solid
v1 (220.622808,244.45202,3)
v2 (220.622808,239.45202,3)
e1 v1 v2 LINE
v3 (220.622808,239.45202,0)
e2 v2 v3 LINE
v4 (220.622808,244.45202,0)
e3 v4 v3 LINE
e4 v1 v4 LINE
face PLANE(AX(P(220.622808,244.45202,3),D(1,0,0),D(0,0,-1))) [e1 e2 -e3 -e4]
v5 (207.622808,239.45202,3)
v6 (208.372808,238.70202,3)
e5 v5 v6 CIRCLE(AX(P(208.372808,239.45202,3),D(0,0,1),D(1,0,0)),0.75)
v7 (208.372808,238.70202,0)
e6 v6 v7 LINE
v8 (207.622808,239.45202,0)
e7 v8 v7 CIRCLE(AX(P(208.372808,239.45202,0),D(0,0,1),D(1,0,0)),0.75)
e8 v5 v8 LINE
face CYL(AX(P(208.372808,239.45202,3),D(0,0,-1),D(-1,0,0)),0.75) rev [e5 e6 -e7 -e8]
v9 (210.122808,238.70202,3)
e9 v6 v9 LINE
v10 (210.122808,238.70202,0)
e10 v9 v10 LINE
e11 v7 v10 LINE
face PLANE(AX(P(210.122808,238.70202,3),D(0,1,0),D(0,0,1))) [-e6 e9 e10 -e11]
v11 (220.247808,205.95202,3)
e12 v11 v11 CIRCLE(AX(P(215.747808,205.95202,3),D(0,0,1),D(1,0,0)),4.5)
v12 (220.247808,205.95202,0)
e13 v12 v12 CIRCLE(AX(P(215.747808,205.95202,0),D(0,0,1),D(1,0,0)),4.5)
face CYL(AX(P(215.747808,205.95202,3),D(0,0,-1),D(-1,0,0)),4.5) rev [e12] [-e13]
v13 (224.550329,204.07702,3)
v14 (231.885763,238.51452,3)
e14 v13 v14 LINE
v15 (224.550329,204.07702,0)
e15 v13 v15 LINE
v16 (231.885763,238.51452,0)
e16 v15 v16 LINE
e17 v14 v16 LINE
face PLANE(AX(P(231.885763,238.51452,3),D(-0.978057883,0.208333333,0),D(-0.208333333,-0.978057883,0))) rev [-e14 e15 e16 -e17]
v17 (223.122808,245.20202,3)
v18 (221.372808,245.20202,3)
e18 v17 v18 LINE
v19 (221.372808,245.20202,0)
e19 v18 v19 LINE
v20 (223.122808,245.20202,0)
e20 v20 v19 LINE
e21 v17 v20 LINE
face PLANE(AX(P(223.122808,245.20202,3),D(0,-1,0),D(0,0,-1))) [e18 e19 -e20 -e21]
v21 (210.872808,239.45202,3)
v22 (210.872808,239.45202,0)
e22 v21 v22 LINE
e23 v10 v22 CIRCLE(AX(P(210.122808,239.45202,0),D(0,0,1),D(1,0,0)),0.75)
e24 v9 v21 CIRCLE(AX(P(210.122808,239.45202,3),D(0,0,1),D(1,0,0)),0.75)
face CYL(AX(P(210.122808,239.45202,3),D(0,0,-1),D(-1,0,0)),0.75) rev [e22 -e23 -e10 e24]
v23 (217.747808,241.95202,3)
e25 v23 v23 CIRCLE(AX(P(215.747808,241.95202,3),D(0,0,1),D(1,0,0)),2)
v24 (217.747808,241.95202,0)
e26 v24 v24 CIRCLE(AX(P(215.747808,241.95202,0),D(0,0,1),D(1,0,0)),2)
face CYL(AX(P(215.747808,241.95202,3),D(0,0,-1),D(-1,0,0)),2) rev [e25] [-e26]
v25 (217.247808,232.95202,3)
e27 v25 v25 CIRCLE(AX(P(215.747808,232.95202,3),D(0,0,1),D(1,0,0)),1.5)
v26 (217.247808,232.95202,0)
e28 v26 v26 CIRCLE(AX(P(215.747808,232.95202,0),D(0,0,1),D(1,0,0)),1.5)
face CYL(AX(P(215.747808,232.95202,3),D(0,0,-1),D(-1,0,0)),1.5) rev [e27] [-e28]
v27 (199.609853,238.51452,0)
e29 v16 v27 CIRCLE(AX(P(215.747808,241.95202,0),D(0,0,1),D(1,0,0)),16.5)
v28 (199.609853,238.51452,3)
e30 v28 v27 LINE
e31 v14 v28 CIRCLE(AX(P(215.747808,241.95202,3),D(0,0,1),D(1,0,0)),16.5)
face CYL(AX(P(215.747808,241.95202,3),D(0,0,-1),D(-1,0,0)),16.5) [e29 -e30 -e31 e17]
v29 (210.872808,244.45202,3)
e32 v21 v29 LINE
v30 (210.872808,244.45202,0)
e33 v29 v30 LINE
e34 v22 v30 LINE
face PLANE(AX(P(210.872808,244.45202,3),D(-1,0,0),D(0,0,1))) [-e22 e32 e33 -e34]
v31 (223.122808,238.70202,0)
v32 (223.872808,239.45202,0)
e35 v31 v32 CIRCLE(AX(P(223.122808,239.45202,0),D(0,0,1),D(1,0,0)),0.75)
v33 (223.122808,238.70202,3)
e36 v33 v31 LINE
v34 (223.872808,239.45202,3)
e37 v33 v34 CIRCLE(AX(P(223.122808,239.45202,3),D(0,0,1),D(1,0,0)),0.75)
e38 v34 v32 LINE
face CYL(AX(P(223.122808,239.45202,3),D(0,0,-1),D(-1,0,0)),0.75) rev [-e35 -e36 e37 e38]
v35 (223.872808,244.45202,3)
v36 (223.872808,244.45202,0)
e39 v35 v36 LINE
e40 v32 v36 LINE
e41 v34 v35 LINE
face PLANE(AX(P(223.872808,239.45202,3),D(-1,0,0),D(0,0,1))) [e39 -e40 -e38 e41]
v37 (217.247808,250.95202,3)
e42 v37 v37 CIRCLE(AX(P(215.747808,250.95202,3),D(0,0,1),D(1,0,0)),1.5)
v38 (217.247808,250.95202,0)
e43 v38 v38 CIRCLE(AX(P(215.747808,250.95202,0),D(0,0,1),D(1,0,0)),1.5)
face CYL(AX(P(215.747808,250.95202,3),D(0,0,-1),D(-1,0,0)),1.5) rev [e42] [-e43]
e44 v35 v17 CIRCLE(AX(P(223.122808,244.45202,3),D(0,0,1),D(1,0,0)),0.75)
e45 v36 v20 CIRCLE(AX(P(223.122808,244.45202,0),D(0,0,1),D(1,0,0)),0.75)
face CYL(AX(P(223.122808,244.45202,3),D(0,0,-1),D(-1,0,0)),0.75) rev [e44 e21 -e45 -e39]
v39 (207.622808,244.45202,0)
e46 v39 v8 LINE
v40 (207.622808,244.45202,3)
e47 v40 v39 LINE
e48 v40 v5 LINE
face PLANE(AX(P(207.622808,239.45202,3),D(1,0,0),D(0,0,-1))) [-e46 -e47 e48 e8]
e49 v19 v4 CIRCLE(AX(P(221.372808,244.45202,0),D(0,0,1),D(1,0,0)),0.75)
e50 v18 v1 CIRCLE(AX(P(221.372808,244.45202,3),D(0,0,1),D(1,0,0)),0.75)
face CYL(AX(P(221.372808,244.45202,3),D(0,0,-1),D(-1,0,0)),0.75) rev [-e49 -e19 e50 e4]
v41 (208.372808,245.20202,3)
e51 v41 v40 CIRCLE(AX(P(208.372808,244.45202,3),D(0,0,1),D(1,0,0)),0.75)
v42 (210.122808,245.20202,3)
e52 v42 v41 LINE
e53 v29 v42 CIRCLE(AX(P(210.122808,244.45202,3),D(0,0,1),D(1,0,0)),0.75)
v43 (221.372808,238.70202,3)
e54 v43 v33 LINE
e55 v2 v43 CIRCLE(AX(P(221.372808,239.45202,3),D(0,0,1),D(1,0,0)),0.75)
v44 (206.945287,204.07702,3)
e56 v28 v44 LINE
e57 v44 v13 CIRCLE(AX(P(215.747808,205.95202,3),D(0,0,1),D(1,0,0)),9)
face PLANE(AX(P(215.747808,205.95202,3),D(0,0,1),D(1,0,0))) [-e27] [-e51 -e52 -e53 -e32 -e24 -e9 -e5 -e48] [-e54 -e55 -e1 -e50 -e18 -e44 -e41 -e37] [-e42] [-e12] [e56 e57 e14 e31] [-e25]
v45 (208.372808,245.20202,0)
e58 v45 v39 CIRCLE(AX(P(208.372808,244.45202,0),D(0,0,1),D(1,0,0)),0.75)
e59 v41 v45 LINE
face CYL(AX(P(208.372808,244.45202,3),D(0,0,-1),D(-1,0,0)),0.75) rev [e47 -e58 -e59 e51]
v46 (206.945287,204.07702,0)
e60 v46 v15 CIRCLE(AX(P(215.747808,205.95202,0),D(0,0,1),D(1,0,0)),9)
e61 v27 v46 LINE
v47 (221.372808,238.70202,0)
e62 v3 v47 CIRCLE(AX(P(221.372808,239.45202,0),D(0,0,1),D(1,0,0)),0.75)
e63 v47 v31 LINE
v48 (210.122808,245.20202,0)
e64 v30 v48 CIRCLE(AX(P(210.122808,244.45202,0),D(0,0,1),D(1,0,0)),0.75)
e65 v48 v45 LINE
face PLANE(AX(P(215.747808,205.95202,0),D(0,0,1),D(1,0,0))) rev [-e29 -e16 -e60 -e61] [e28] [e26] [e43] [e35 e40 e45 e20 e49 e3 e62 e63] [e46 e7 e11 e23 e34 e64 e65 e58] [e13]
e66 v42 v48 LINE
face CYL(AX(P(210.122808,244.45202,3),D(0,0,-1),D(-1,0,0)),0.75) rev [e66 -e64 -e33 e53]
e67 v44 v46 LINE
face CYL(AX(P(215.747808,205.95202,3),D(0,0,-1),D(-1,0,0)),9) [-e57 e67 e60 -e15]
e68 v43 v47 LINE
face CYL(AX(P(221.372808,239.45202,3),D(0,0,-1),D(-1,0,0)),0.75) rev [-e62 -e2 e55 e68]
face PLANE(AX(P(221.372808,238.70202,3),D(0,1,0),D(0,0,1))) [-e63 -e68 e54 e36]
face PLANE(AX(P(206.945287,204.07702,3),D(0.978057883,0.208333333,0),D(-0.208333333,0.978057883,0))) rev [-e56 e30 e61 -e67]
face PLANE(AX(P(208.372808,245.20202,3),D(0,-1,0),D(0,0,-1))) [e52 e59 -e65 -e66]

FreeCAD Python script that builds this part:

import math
import FreeCAD as App
import Part
import Sketcher

V = App.Vector

doc = App.newDocument("Part")
body = doc.addObject("PartDesign::Body", "Body")

sketch1 = body.newObject("Sketcher::SketchObject", "Sketch")
sketch1.AttachmentSupport = (doc.getObject("XY_Plane"), [""])
sketch1.MapMode = "FlatFace"
sketch1.addGeometry(Part.LineSegment(V(199.6, 238.5, 0), V(206.9, 204.1, 0)), False)
sketch1.addGeometry(Part.ArcOfCircle(Part.Circle(V(215.7, 206, 0), V(0, 0, 1), 9), math.radians(-168), math.radians(-12)), False)
sketch1.addGeometry(Part.LineSegment(V(224.6, 204.1, 0), V(231.9, 238.5, 0)), False)
sketch1.addGeometry(Part.ArcOfCircle(Part.Circle(V(215.7, 242, 0), V(0, 0, 1), 16.5), math.radians(-12), math.radians(192)), False)
sketch1.addGeometry(Part.Circle(V(215.7, 206, 0), V(0, 0, 1), 4.5), False)
sketch1.addGeometry(Part.Circle(V(215.7, 233, 0), V(0, 0, 1), 1.5), False)
sketch1.addGeometry(Part.ArcOfCircle(Part.Circle(V(223.1, 244.5, 0), V(0, 0, 1), 0.8), math.radians(0), math.radians(90)), False)
sketch1.addGeometry(Part.LineSegment(V(223.9, 244.5, 0), V(223.9, 239.5, 0)), False)
sketch1.addGeometry(Part.ArcOfCircle(Part.Circle(V(223.1, 239.5, 0), V(0, 0, 1), 0.8), math.radians(-90), math.radians(0)), False)
sketch1.addGeometry(Part.LineSegment(V(223.1, 238.7, 0), V(221.4, 238.7, 0)), False)
sketch1.addGeometry(Part.ArcOfCircle(Part.Circle(V(221.4, 239.5, 0), V(0, 0, 1), 0.8), math.radians(-180), math.radians(-90)), False)
sketch1.addGeometry(Part.LineSegment(V(220.6, 239.5, 0), V(220.6, 244.5, 0)), False)
sketch1.addGeometry(Part.ArcOfCircle(Part.Circle(V(221.4, 244.5, 0), V(0, 0, 1), 0.8), math.radians(90), math.radians(180)), False)
sketch1.addGeometry(Part.LineSegment(V(221.4, 245.2, 0), V(223.1, 245.2, 0)), False)
sketch1.addGeometry(Part.Circle(V(215.7, 242, 0), V(0, 0, 1), 2), False)
sketch1.addGeometry(Part.Circle(V(215.7, 251, 0), V(0, 0, 1), 1.5), False)
sketch1.addGeometry(Part.LineSegment(V(208.4, 245.2, 0), V(210.1, 245.2, 0)), False)
sketch1.addGeometry(Part.ArcOfCircle(Part.Circle(V(210.1, 244.5, 0), V(0, 0, 1), 0.8), math.radians(0), math.radians(90)), False)
sketch1.addGeometry(Part.LineSegment(V(210.9, 244.5, 0), V(210.9, 239.5, 0)), False)
sketch1.addGeometry(Part.ArcOfCircle(Part.Circle(V(210.1, 239.5, 0), V(0, 0, 1), 0.8), math.radians(-90), math.radians(0)), False)
sketch1.addGeometry(Part.LineSegment(V(210.1, 238.7, 0), V(208.4, 238.7, 0)), False)
sketch1.addGeometry(Part.ArcOfCircle(Part.Circle(V(208.4, 239.5, 0), V(0, 0, 1), 0.8), math.radians(-180), math.radians(-90)), False)
sketch1.addGeometry(Part.LineSegment(V(207.6, 239.5, 0), V(207.6, 244.5, 0)), False)
sketch1.addGeometry(Part.ArcOfCircle(Part.Circle(V(208.4, 244.5, 0), V(0, 0, 1), 0.8), math.radians(90), math.radians(180)), False)
sketch1.addConstraint(Sketcher.Constraint("Tangent", 0, 2, 1, 1))
sketch1.addConstraint(Sketcher.Constraint("Tangent", 1, 2, 2, 1))
sketch1.addConstraint(Sketcher.Constraint("Tangent", 2, 2, 3, 1))
sketch1.addConstraint(Sketcher.Constraint("Tangent", 3, 2, 0, 1))
sketch1.addConstraint(Sketcher.Constraint("Tangent", 6, 1, 7, 1))
sketch1.addConstraint(Sketcher.Constraint("Tangent", 7, 2, 8, 2))
sketch1.addConstraint(Sketcher.Constraint("Tangent", 8, 1, 9, 1))
sketch1.addConstraint(Sketcher.Constraint("Tangent", 9, 2, 10, 2))
sketch1.addConstraint(Sketcher.Constraint("Tangent", 10, 1, 11, 1))
sketch1.addConstraint(Sketcher.Constraint("Tangent", 11, 2, 12, 2))
sketch1.addConstraint(Sketcher.Constraint("Tangent", 12, 1, 13, 1))
sketch1.addConstraint(Sketcher.Constraint("Tangent", 13, 2, 6, 2))
sketch1.addConstraint(Sketcher.Constraint("Tangent", 16, 2, 17, 2))
sketch1.addConstraint(Sketcher.Constraint("Tangent", 17, 1, 18, 1))
sketch1.addConstraint(Sketcher.Constraint("Tangent", 18, 2, 19, 2))
sketch1.addConstraint(Sketcher.Constraint("Tangent", 19, 1, 20, 1))
sketch1.addConstraint(Sketcher.Constraint("Tangent", 20, 2, 21, 2))
sketch1.addConstraint(Sketcher.Constraint("Tangent", 21, 1, 22, 1))
sketch1.addConstraint(Sketcher.Constraint("Tangent", 22, 2, 23, 2))
sketch1.addConstraint(Sketcher.Constraint("Tangent", 23, 1, 16, 1))
sketch1.addConstraint(Sketcher.Constraint("Vertical", 7))
sketch1.addConstraint(Sketcher.Constraint("Horizontal", 9))
sketch1.addConstraint(Sketcher.Constraint("Vertical", 11))
sketch1.addConstraint(Sketcher.Constraint("Horizontal", 13))
sketch1.addConstraint(Sketcher.Constraint("Horizontal", 16))
sketch1.addConstraint(Sketcher.Constraint("Vertical", 18))
sketch1.addConstraint(Sketcher.Constraint("Horizontal", 20))
sketch1.addConstraint(Sketcher.Constraint("Vertical", 22))
sketch1.addConstraint(Sketcher.Constraint("Coincident", 4, 3, 1, 3))
sketch1.addConstraint(Sketcher.Constraint("Coincident", 14, 3, 3, 3))
sketch1.addConstraint(Sketcher.Constraint("Equal", 6, 8))
sketch1.addConstraint(Sketcher.Constraint("Equal", 8, 10))
sketch1.addConstraint(Sketcher.Constraint("Equal", 10, 12))
sketch1.addConstraint(Sketcher.Constraint("Equal", 5, 15))
sketch1.addConstraint(Sketcher.Constraint("Equal", 12, 17))
sketch1.addConstraint(Sketcher.Constraint("Equal", 17, 19))
sketch1.addConstraint(Sketcher.Constraint("Equal", 19, 21))
sketch1.addConstraint(Sketcher.Constraint("Equal", 21, 23))
sketch1.addConstraint(Sketcher.Constraint("Horizontal", 12, 3, 17, 3))
sketch1.addConstraint(Sketcher.Constraint("Horizontal", 10, 3, 19, 3))
sketch1.addConstraint(Sketcher.Constraint("Horizontal", 0, 2, 1, 2))
sketch1.addConstraint(Sketcher.Constraint("Vertical", 4, 3, 5, 3))
sketch1.addConstraint(Sketcher.Constraint("Vertical", 14, 3, 15, 3))
sketch1.addConstraint(Sketcher.Constraint("Equal", 13, 16))
sketch1.addConstraint(Sketcher.Constraint("Diameter", 4, 9.0))
sketch1.addConstraint(Sketcher.Constraint("Diameter", 5, 3.0))
sketch1.addConstraint(Sketcher.Constraint("Diameter", 14, 4.0))
sketch1.addConstraint(Sketcher.Constraint("Radius", 1, 9.0))
sketch1.addConstraint(Sketcher.Constraint("Radius", 3, 16.5))
sketch1.addConstraint(Sketcher.Constraint("DistanceY", 7, 2, 7, 1, 5.0))
sketch1.addConstraint(Sketcher.Constraint("Radius", 6, 0.75))
sketch1.addConstraint(Sketcher.Constraint("DistanceY", 1, 3, 3, 3, 36.0))
sketch1.addConstraint(Sketcher.Constraint("DistanceY", 5, 3, 3, 3, 9.0))
sketch1.addConstraint(Sketcher.Constraint("DistanceY", 3, 3, 15, 3, 9.0))
sketch1.addConstraint(Sketcher.Constraint("DistanceX", 9, 2, 9, 1, 1.75))
sketch1.addConstraint(Sketcher.Constraint("DistanceY", 3, 3, 6, 3, 2.5))
sketch1.addConstraint(Sketcher.Constraint("DistanceX", 17, 3, 12, 3, 11.25))
sketch1.addConstraint(Sketcher.Constraint("DistanceX", 3, 3, 6, 3, 7.375))
sketch1.addConstraint(Sketcher.Constraint("DistanceY", -1, 1, 1, 3, 205.95202))
sketch1.addConstraint(Sketcher.Constraint("DistanceX", -1, 1, 1, 2, 224.550329))
pad1 = body.newObject("PartDesign::Pad", "Pad")
pad1.Profile = sketch1
pad1.Length = 3

doc.recompute()
